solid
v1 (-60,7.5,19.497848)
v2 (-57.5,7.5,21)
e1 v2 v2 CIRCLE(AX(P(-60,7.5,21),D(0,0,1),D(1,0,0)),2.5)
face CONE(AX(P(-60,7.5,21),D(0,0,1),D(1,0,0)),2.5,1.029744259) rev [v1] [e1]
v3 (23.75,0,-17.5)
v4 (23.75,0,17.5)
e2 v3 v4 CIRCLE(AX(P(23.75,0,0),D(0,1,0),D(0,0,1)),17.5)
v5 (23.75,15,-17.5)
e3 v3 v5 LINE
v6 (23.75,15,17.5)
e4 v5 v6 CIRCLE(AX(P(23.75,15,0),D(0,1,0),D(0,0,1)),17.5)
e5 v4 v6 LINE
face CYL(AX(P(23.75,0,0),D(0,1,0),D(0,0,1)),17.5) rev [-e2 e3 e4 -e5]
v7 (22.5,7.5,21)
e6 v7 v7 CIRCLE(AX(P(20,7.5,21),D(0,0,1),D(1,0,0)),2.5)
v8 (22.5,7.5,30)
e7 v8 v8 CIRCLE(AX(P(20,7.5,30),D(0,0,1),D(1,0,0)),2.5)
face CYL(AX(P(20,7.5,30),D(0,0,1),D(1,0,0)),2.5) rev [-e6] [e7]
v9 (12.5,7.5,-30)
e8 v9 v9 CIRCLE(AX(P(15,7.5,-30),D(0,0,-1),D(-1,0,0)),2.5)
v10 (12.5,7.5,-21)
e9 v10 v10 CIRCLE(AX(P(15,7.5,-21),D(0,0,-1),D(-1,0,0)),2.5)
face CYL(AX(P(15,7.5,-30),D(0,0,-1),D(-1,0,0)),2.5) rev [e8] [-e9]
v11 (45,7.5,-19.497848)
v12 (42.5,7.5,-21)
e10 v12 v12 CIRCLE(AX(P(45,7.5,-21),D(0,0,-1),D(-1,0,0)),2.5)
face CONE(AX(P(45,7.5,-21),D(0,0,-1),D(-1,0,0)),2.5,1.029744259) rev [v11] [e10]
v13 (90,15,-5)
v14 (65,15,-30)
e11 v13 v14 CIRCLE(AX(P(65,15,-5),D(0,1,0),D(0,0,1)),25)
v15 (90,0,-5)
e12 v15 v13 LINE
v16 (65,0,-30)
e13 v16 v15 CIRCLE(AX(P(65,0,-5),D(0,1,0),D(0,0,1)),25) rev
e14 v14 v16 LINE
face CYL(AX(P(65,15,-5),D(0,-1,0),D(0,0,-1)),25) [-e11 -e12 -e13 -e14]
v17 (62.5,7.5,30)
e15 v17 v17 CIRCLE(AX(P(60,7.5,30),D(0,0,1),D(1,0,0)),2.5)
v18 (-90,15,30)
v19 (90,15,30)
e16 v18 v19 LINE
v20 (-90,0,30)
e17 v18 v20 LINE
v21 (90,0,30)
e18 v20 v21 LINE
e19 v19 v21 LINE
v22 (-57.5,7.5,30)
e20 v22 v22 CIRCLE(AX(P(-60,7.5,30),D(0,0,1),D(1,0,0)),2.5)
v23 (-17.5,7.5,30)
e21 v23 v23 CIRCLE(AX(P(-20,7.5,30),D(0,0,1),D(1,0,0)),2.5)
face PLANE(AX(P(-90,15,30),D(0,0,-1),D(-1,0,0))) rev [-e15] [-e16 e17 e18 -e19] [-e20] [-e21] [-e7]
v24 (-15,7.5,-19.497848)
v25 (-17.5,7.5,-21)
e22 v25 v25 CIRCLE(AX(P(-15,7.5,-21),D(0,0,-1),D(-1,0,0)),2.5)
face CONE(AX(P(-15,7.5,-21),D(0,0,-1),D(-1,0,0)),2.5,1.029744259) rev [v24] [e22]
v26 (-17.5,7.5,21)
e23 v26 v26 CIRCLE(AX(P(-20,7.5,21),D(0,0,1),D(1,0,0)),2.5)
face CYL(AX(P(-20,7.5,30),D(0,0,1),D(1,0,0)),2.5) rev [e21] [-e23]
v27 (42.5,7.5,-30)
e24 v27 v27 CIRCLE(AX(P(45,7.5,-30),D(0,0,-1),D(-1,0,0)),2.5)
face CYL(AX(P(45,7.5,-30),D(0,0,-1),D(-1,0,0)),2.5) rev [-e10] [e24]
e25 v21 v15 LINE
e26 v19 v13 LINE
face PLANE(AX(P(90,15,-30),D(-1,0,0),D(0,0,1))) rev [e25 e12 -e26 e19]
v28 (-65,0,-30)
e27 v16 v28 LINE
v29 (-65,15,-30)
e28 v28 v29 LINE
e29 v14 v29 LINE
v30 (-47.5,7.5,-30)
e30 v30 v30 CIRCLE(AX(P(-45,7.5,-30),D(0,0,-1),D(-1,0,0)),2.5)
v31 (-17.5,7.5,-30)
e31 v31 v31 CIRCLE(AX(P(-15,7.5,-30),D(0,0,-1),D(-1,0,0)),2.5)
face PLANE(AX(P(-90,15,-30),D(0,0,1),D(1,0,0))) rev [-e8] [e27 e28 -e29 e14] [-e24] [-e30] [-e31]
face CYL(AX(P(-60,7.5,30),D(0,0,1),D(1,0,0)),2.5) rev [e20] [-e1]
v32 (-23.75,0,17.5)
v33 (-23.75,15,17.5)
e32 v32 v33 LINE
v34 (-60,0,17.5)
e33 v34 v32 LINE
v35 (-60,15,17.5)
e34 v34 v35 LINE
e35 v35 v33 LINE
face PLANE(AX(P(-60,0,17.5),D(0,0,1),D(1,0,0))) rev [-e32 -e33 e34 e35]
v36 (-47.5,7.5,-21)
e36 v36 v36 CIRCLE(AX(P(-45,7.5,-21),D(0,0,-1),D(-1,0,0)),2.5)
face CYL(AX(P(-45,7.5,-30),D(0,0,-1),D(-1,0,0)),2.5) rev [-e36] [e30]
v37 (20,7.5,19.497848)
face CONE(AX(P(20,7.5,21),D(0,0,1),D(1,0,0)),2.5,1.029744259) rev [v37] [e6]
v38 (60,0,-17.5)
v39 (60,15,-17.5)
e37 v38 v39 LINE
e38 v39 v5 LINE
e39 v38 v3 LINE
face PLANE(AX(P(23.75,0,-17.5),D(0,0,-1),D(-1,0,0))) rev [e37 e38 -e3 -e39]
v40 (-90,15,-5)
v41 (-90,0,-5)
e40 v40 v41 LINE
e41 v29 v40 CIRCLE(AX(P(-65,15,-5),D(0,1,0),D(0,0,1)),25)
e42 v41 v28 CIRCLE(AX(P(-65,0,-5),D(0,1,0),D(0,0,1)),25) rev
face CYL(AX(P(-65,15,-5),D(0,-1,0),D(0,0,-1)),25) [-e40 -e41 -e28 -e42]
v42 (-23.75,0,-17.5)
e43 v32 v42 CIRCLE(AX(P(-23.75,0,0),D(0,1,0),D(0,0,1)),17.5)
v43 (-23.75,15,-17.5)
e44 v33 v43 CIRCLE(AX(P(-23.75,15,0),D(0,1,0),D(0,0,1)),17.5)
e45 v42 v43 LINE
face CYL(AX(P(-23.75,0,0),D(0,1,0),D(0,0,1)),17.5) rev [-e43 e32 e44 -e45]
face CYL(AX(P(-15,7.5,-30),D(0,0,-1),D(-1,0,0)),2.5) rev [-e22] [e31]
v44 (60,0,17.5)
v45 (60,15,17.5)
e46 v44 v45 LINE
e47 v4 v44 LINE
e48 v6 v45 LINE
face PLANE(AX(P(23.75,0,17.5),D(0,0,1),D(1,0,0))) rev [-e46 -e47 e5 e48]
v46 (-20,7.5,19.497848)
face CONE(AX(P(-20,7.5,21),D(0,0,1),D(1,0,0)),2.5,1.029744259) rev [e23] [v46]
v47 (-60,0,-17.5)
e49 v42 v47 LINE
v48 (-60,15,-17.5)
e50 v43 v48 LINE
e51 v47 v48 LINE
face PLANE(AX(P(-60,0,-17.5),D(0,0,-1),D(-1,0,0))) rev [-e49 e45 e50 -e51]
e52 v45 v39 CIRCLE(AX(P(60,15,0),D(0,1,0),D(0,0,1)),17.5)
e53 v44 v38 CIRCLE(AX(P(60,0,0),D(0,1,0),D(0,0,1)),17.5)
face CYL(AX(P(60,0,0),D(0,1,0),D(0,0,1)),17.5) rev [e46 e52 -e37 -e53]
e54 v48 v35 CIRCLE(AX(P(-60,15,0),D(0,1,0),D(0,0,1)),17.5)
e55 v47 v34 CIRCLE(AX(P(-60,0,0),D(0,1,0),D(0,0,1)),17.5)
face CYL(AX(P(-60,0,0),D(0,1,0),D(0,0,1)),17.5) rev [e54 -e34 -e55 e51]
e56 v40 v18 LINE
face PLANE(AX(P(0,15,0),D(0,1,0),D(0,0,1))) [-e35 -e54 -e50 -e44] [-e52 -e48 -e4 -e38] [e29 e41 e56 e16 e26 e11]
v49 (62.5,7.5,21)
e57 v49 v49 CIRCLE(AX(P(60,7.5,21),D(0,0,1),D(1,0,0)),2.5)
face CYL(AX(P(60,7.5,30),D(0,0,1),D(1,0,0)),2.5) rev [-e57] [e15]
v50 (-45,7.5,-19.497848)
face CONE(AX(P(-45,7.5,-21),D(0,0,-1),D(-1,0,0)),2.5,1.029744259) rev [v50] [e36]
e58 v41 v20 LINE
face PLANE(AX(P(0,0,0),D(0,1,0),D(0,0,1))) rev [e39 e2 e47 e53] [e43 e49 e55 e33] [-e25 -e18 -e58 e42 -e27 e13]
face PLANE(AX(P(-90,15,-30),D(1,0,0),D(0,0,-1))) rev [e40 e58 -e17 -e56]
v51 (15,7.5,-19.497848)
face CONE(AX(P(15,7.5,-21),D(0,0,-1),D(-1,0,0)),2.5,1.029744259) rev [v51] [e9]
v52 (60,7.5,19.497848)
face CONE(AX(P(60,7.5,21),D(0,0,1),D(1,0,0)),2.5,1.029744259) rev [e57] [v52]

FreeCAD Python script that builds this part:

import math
import FreeCAD as App
import Part
import Sketcher
from FreeCAD import Vector


def edges_at(feature, points):
    """Names of the edges that pass closest to the given points."""
    edges = feature.Shape.Edges
    near = lambda p: min(range(len(edges)), key=lambda i: edges[i].distToShape(Part.Vertex(*p))[0])
    return sorted({f"Edge{near(p) + 1}" for p in points})


def add_polygon(sketch, points):
    """Adds a closed chain of lines whose ends are joined by coincident constraints."""
    first, n = sketch.GeometryCount, len(points)
    for a, b in zip(points, points[1:] + points[:1]):
        sketch.addGeometry(Part.LineSegment(App.Vector(*a, 0), App.Vector(*b, 0)), False)
    for i in range(n):
        sketch.addConstraint(Sketcher.Constraint("Coincident", first + i, 2, first + (i + 1) % n, 1))

doc = App.newDocument("Part")
body = doc.addObject("PartDesign::Body", "Body")

sketch1 = body.newObject("Sketcher::SketchObject", "Sketch")
sketch1.AttachmentSupport = (doc.getObject("XZ_Plane"), [""])
sketch1.MapMode = "FlatFace"
add_polygon(sketch1, [(-90, -30), (-90, 30), (90, 30), (90, -30)])
sketch1.addConstraint(Sketcher.Constraint("Vertical", 0))
sketch1.addConstraint(Sketcher.Constraint("Horizontal", 1))
sketch1.addConstraint(Sketcher.Constraint("Vertical", 2))
sketch1.addConstraint(Sketcher.Constraint("Horizontal", 3))
sketch1.addConstraint(Sketcher.Constraint("Symmetric", 0, 2, 2, 2, -1, 1))
sketch1.addConstraint(Sketcher.Constraint("DistanceX", 1, 1, 1, 2, 180.0))
sketch1.addConstraint(Sketcher.Constraint("DistanceY", 0, 1, 0, 2, 60.0))
pad1 = body.newObject("PartDesign::Pad", "Pad")
pad1.Profile = sketch1
pad1.Length = 15
pad1.Reversed = True

sketch2 = body.newObject("Sketcher::SketchObject", "Sketch001")
sketch2.AttachmentSupport = (doc.getObject("XZ_Plane"), [""])
sketch2.MapMode = "FlatFace"
sketch2.AttachmentOffset = App.Placement(Vector(0, 0, -15), App.Rotation())
sketch2.addGeometry(Part.LineSegment(Vector(-24, -18, 0), Vector(-60, -18, 0)), False)
sketch2.addGeometry(Part.ArcOfCircle(Part.Circle(Vector(-60, 0, 0), Vector(0, 0, 1), 18), math.radians(90), math.radians(270)), False)
sketch2.addGeometry(Part.LineSegment(Vector(-60, 18, 0), Vector(-24, 18, 0)), False)
sketch2.addGeometry(Part.ArcOfCircle(Part.Circle(Vector(-24, 0, 0), Vector(0, 0, 1), 18), math.radians(-90), math.radians(90)), False)
sketch2.addGeometry(Part.LineSegment(Vector(60, -18, 0), Vector(24, -18, 0)), False)
sketch2.addGeometry(Part.ArcOfCircle(Part.Circle(Vector(24, 0, 0), Vector(0, 0, 1), 18), math.radians(90), math.radians(270)), False)
sketch2.addGeometry(Part.LineSegment(Vector(24, 18, 0), Vector(60, 18, 0)), False)
sketch2.addGeometry(Part.ArcOfCircle(Part.Circle(Vector(60, 0, 0), Vector(0, 0, 1), 18), math.radians(-90), math.radians(90)), False)
sketch2.addConstraint(Sketcher.Constraint("Tangent", 0, 2, 1, 2))
sketch2.addConstraint(Sketcher.Constraint("Tangent", 1, 1, 2, 1))
sketch2.addConstraint(Sketcher.Constraint("Tangent", 2, 2, 3, 2))
sketch2.addConstraint(Sketcher.Constraint("Tangent", 3, 1, 0, 1))
sketch2.addConstraint(Sketcher.Constraint("Tangent", 4, 2, 5, 2))
sketch2.addConstraint(Sketcher.Constraint("Tangent", 5, 1, 6, 1))
sketch2.addConstraint(Sketcher.Constraint("Tangent", 6, 2, 7, 2))
sketch2.addConstraint(Sketcher.Constraint("Tangent", 7, 1, 4, 1))
sketch2.addConstraint(Sketcher.Constraint("Horizontal", 0))
sketch2.addConstraint(Sketcher.Constraint("Horizontal", 2))
sketch2.addConstraint(Sketcher.Constraint("Horizontal", 4))
sketch2.addConstraint(Sketcher.Constraint("Horizontal", 6))
sketch2.addConstraint(Sketcher.Constraint("Equal", 3, 5))
sketch2.addConstraint(Sketcher.Constraint("Symmetric", 3, 3, 5, 3, -1, 1))
sketch2.addConstraint(Sketcher.Constraint("Symmetric", 1, 3, 7, 3, -2))
sketch2.addConstraint(Sketcher.Constraint("Radius", 1, 17.5))
sketch2.addConstraint(Sketcher.Constraint("DistanceX", 1, 3, -1, 1, 60.0))
sketch2.addConstraint(Sketcher.Constraint("DistanceX", 0, 2, 0, 1, 36.25))
pocket1 = body.newObject("PartDesign::Pocket", "Pocket")
pocket1.Profile = sketch2
pocket1.Type = "ThroughAll"
pocket1.Reversed = True

sketch3 = body.newObject("Sketcher::SketchObject", "Sketch002")
sketch3.AttachmentSupport = (doc.getObject("XY_Plane"), [""])
sketch3.MapMode = "FlatFace"
sketch3.AttachmentOffset = App.Placement(Vector(0, 0, 30), App.Rotation())
sketch3.addGeometry(Part.Circle(Vector(60, 7.5, 0), Vector(0, 0, 1), 2.5), False)
sketch3.addGeometry(Part.Circle(Vector(-20, 7.5, 0), Vector(0, 0, 1), 2.5), False)
sketch3.addGeometry(Part.Circle(Vector(20, 7.5, 0), Vector(0, 0, 1), 2.5), False)
sketch3.addGeometry(Part.Circle(Vector(-60, 7.5, 0), Vector(0, 0, 1), 2.5), False)
sketch3.addConstraint(Sketcher.Constraint("Equal", 0, 1))
sketch3.addConstraint(Sketcher.Constraint("Equal", 1, 2))
sketch3.addConstraint(Sketcher.Constraint("Equal", 2, 3))
sketch3.addConstraint(Sketcher.Constraint("Symmetric", 1, 3, 2, 3, -2))
sketch3.addConstraint(Sketcher.Constraint("Symmetric", 0, 3, 3, 3, -2))
sketch3.addConstraint(Sketcher.Constraint("Horizontal", 0, 3, 1, 3))
sketch3.addConstraint(Sketcher.Constraint("Diameter", 0, 5.0))
sketch3.addConstraint(Sketcher.Constraint("DistanceX", -1, 1, 0, 3, 60.0))
sketch3.addConstraint(Sketcher.Constraint("DistanceX", 1, 3, -1, 1, 20.0))
sketch3.addConstraint(Sketcher.Constraint("DistanceY", -1, 1, 0, 3, 7.5))
doc.recompute()
hole = body.newObject("PartDesign::Hole", "Hole")
hole.Profile = sketch3
hole.ThreadType = "None"
hole.Diameter = 5
hole.DepthType = "Dimension"
hole.Depth = 9
hole.DrillPoint = "Angled"
hole.DrillPointAngle = 118
doc.recompute()

fillet = body.newObject("PartDesign::Fillet", "Fillet")
fillet.Base = (hole, edges_at(hole, [(-90, 7.5, -30), (90, 7.5, -30)]))
fillet.Radius = 25

sketch4 = body.newObject("Sketcher::SketchObject", "Sketch003")
sketch4.AttachmentSupport = (doc.getObject("XY_Plane"), [""])
sketch4.MapMode = "FlatFace"
sketch4.AttachmentOffset = App.Placement(Vector(0, 0, -30), App.Rotation())
sketch4.addGeometry(Part.Circle(Vector(45, 7.5, 0), Vector(0, 0, 1), 2.5), False)
sketch4.addGeometry(Part.Circle(Vector(15, 7.5, 0), Vector(0, 0, 1), 2.5), False)
sketch4.addGeometry(Part.Circle(Vector(-15, 7.5, 0), Vector(0, 0, 1), 2.5), False)
sketch4.addGeometry(Part.Circle(Vector(-45, 7.5, 0), Vector(0, 0, 1), 2.5), False)
sketch4.addConstraint(Sketcher.Constraint("Equal", 0, 1))
sketch4.addConstraint(Sketcher.Constraint("Equal", 1, 2))
sketch4.addConstraint(Sketcher.Constraint("Equal", 2, 3))
sketch4.addConstraint(Sketcher.Constraint("Symmetric", 1, 3, 2, 3, -2))
sketch4.addConstraint(Sketcher.Constraint("Symmetric", 0, 3, 3, 3, -2))
sketch4.addConstraint(Sketcher.Constraint("Horizontal", 0, 3, 1, 3))
sketch4.addConstraint(Sketcher.Constraint("Diameter", 0, 5.0))
sketch4.addConstraint(Sketcher.Constraint("DistanceX", -1, 1, 0, 3, 45.0))
sketch4.addConstraint(Sketcher.Constraint("DistanceX", -1, 1, 1, 3, 15.0))
sketch4.addConstraint(Sketcher.Constraint("DistanceY", -1, 1, 0, 3, 7.5))
doc.recompute()
hole2 = body.newObject("PartDesign::Hole", "Hole001")
hole2.Profile = sketch4
hole2.ThreadType = "None"
hole2.Diameter = 5
hole2.DepthType = "Dimension"
hole2.Depth = 9
hole2.DrillPoint = "Angled"
hole2.DrillPointAngle = 118
hole2.Reversed = True

doc.recompute()
